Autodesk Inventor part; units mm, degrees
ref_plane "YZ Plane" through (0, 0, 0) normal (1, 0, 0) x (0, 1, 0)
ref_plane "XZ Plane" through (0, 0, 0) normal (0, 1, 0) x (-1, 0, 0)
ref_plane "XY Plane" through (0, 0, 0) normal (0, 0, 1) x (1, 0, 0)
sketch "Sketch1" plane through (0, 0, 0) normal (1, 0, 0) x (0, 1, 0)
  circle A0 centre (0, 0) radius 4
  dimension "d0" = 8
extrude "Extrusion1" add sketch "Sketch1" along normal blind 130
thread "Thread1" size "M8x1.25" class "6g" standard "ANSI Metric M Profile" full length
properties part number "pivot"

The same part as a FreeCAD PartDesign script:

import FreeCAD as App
import Part
import Sketcher

V = App.Vector

doc = App.newDocument("Part")
body = doc.addObject("PartDesign::Body", "Body")

sketch1 = body.newObject("Sketcher::SketchObject", "Sketch")
sketch1.AttachmentSupport = (doc.getObject("YZ_Plane"), [""])
sketch1.MapMode = "FlatFace"
sketch1.addGeometry(Part.Circle(V(0, 0, 0), V(0, 0, 1), 4), False)
sketch1.addConstraint([
    Sketcher.Constraint("Coincident", 0, 3, -1, 1),
    Sketcher.Constraint("Diameter", 0, 8.0),
])
pad1 = body.newObject("PartDesign::Pad", "Pad")
pad1.Profile = sketch1
pad1.Length = 130

doc.recompute()
